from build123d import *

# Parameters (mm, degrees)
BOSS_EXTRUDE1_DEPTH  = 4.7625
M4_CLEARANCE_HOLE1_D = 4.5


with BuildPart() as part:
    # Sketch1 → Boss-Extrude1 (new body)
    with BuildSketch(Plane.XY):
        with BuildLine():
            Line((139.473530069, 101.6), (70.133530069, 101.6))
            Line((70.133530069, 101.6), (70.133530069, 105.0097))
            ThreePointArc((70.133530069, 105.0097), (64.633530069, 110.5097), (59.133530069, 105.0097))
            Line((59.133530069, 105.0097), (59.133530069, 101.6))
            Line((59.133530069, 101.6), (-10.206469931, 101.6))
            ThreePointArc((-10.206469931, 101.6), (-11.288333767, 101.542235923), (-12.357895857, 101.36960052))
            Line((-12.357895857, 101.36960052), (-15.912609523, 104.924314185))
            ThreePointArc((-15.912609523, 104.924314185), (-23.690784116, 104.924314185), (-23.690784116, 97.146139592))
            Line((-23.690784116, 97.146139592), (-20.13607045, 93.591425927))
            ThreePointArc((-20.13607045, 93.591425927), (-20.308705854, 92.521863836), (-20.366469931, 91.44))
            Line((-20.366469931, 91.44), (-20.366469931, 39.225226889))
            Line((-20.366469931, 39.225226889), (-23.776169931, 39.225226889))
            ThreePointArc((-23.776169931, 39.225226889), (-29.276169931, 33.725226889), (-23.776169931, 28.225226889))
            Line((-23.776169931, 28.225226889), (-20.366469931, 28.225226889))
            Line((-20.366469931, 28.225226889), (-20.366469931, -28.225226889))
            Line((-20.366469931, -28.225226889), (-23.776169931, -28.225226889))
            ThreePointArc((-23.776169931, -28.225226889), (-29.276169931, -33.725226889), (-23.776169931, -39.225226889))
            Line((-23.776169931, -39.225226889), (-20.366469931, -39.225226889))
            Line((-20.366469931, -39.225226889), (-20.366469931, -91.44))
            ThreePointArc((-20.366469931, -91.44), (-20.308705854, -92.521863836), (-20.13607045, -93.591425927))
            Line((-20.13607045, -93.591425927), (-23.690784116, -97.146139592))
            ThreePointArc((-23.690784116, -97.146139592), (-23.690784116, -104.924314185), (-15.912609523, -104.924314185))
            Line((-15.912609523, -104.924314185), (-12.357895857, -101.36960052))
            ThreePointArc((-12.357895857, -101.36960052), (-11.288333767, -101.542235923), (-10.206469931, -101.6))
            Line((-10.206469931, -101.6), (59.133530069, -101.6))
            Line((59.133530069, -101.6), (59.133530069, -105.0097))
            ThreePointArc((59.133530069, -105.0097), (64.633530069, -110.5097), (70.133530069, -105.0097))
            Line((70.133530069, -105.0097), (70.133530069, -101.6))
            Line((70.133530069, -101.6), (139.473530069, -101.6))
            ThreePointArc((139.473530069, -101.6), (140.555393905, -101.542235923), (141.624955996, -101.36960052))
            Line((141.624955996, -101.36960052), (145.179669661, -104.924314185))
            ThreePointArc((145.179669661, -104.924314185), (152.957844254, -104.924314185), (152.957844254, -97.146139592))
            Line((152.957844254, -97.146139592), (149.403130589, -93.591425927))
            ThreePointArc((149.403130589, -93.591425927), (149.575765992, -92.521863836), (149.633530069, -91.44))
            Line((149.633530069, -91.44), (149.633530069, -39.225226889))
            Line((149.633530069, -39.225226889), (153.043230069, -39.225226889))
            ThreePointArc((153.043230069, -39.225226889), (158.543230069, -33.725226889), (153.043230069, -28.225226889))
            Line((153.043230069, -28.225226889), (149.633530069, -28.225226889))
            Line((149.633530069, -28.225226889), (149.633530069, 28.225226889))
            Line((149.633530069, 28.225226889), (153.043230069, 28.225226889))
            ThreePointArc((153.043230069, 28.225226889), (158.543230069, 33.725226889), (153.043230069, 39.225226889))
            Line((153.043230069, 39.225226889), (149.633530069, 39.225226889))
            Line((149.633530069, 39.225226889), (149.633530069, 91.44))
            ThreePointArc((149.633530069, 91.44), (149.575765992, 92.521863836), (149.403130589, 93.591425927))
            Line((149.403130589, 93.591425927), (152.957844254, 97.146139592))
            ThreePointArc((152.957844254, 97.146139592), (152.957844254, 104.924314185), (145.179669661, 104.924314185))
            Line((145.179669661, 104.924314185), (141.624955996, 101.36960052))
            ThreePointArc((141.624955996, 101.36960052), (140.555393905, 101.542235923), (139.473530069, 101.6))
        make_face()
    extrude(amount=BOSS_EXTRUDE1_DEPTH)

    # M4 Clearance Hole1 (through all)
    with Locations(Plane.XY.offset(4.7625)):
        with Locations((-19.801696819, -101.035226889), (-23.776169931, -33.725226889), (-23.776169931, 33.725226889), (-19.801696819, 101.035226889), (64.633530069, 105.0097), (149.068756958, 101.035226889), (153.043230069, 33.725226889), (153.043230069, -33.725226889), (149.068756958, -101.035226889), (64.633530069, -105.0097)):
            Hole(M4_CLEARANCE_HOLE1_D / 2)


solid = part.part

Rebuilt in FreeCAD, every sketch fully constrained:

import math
import FreeCAD as App
import Part
import Sketcher

V = App.Vector
Q = App.Units.Quantity

doc = App.newDocument("Part")
params = doc.addObject("Spreadsheet::Sheet", "Params")
for row, (alias, value) in enumerate([
    ("sketch1_radius", "5.5 mm"),
    ("sketch1_radius2", "10.16 mm"),
    ("sketch1_width", "69.34 mm"),
    ("pad1_length", "4.7625 mm"),
    ("sketch2_diameter", "4.5 mm"),
    ("hole_diameter", "4.5 mm"),
], start=1):
    params.set(f"A{row}", alias)
    params.set(f"B{row}", "=" + value)
    params.setAlias(f"B{row}", alias)

body = doc.addObject("PartDesign::Body", "Body")

sketch1 = body.newObject("Sketcher::SketchObject", "Sketch")
sketch1.AttachmentSupport = (doc.getObject("XY_Plane"), [""])
sketch1.MapMode = "FlatFace"
sketch1.addGeometry([
    Part.LineSegment(V(139.5, 101.6, 0), V(70.1, 101.6, 0)),
    Part.LineSegment(V(70.1, 101.6, 0), V(70.1, 105, 0)),
    Part.ArcOfCircle(Part.Circle(V(64.6, 105, 0), V(0, 0, 1), 5.5), math.radians(0), math.radians(180)),
    Part.LineSegment(V(59.1, 105, 0), V(59.1, 101.6, 0)),
    Part.LineSegment(V(59.1, 101.6, 0), V(-10.2, 101.6, 0)),
    Part.ArcOfCircle(Part.Circle(V(-10.2, 91.4, 0), V(0, 0, 1), 10.2), math.radians(90), math.radians(102.23)),
    Part.LineSegment(V(-12.4, 101.4, 0), V(-15.9, 104.9, 0)),
    Part.ArcOfCircle(Part.Circle(V(-19.8, 101, 0), V(0, 0, 1), 5.5), math.radians(45), math.radians(225)),
    Part.LineSegment(V(-23.7, 97.1, 0), V(-20.1, 93.6, 0)),
    Part.ArcOfCircle(Part.Circle(V(-10.2, 91.4, 0), V(0, 0, 1), 10.2), math.radians(167.77), math.radians(180)),
    Part.LineSegment(V(-20.4, 91.4, 0), V(-20.4, 39.2, 0)),
    Part.LineSegment(V(-20.4, 39.2, 0), V(-23.8, 39.2, 0)),
    Part.ArcOfCircle(Part.Circle(V(-23.8, 33.7, 0), V(0, 0, 1), 5.5), math.radians(90), math.radians(270)),
    Part.LineSegment(V(-23.8, 28.2, 0), V(-20.4, 28.2, 0)),
    Part.LineSegment(V(-20.4, 28.2, 0), V(-20.4, -28.2, 0)),
    Part.LineSegment(V(-20.4, -28.2, 0), V(-23.8, -28.2, 0)),
    Part.ArcOfCircle(Part.Circle(V(-23.8, -33.7, 0), V(0, 0, 1), 5.5), math.radians(90), math.radians(270)),
    Part.LineSegment(V(-23.8, -39.2, 0), V(-20.4, -39.2, 0)),
    Part.LineSegment(V(-20.4, -39.2, 0), V(-20.4, -91.4, 0)),
    Part.ArcOfCircle(Part.Circle(V(-10.2, -91.4, 0), V(0, 0, 1), 10.2), math.radians(180), math.radians(192.23)),
    Part.LineSegment(V(-20.1, -93.6, 0), V(-23.7, -97.1, 0)),
    Part.ArcOfCircle(Part.Circle(V(-19.8, -101, 0), V(0, 0, 1), 5.5), math.radians(135), math.radians(315)),
    Part.LineSegment(V(-15.9, -104.9, 0), V(-12.4, -101.4, 0)),
    Part.ArcOfCircle(Part.Circle(V(-10.2, -91.4, 0), V(0, 0, 1), 10.2), math.radians(-102.23), math.radians(-90)),
    Part.LineSegment(V(-10.2, -101.6, 0), V(59.1, -101.6, 0)),
    Part.LineSegment(V(59.1, -101.6, 0), V(59.1, -105, 0)),
    Part.ArcOfCircle(Part.Circle(V(64.6, -105, 0), V(0, 0, 1), 5.5), math.radians(180), math.radians(360)),
    Part.LineSegment(V(70.1, -105, 0), V(70.1, -101.6, 0)),
    Part.LineSegment(V(70.1, -101.6, 0), V(139.5, -101.6, 0)),
    Part.ArcOfCircle(Part.Circle(V(139.5, -91.4, 0), V(0, 0, 1), 10.2), math.radians(-90), math.radians(-77.77)),
    Part.LineSegment(V(141.6, -101.4, 0), V(145.2, -104.9, 0)),
    Part.ArcOfCircle(Part.Circle(V(149.1, -101, 0), V(0, 0, 1), 5.5), math.radians(-135), math.radians(45)),
    Part.LineSegment(V(153, -97.1, 0), V(149.4, -93.6, 0)),
    Part.ArcOfCircle(Part.Circle(V(139.5, -91.4, 0), V(0, 0, 1), 10.2), math.radians(-12.23), math.radians(0)),
    Part.LineSegment(V(149.6, -91.4, 0), V(149.6, -39.2, 0)),
    Part.LineSegment(V(149.6, -39.2, 0), V(153, -39.2, 0)),
    Part.ArcOfCircle(Part.Circle(V(153, -33.7, 0), V(0, 0, 1), 5.5), math.radians(-90), math.radians(90)),
    Part.LineSegment(V(153, -28.2, 0), V(149.6, -28.2, 0)),
    Part.LineSegment(V(149.6, -28.2, 0), V(149.6, 28.2, 0)),
    Part.LineSegment(V(149.6, 28.2, 0), V(153, 28.2, 0)),
    Part.ArcOfCircle(Part.Circle(V(153, 33.7, 0), V(0, 0, 1), 5.5), math.radians(-90), math.radians(90)),
    Part.LineSegment(V(153, 39.2, 0), V(149.6, 39.2, 0)),
    Part.LineSegment(V(149.6, 39.2, 0), V(149.6, 91.4, 0)),
    Part.ArcOfCircle(Part.Circle(V(139.5, 91.4, 0), V(0, 0, 1), 10.2), math.radians(0), math.radians(12.23)),
    Part.LineSegment(V(149.4, 93.6, 0), V(153, 97.1, 0)),
    Part.ArcOfCircle(Part.Circle(V(149.1, 101, 0), V(0, 0, 1), 5.5), math.radians(-45), math.radians(135)),
    Part.LineSegment(V(145.2, 104.9, 0), V(141.6, 101.4, 0)),
    Part.ArcOfCircle(Part.Circle(V(139.5, 91.4, 0), V(0, 0, 1), 10.2), math.radians(77.77), math.radians(90)),
], False)
sketch1.addConstraint([
    Sketcher.Constraint("Coincident", 0, 2, 1, 1),
    Sketcher.Constraint("Tangent", 1, 2, 2, 1),
    Sketcher.Constraint("Tangent", 2, 2, 3, 1),
    Sketcher.Constraint("Coincident", 3, 2, 4, 1),
    Sketcher.Constraint("Tangent", 4, 2, 5, 1),
    Sketcher.Constraint("Coincident", 5, 2, 6, 1),
    Sketcher.Constraint("Tangent", 6, 2, 7, 1),
    Sketcher.Constraint("Tangent", 7, 2, 8, 1),
    Sketcher.Constraint("Coincident", 8, 2, 9, 1),
    Sketcher.Constraint("Tangent", 9, 2, 10, 1),
    Sketcher.Constraint("Coincident", 10, 2, 11, 1),
    Sketcher.Constraint("Tangent", 11, 2, 12, 1),
    Sketcher.Constraint("Tangent", 12, 2, 13, 1),
    Sketcher.Constraint("Coincident", 13, 2, 14, 1),
    Sketcher.Constraint("Coincident", 14, 2, 15, 1),
    Sketcher.Constraint("Tangent", 15, 2, 16, 1),
    Sketcher.Constraint("Tangent", 16, 2, 17, 1),
    Sketcher.Constraint("Coincident", 17, 2, 18, 1),
    Sketcher.Constraint("Tangent", 18, 2, 19, 1),
    Sketcher.Constraint("Coincident", 19, 2, 20, 1),
    Sketcher.Constraint("Tangent", 20, 2, 21, 1),
    Sketcher.Constraint("Tangent", 21, 2, 22, 1),
    Sketcher.Constraint("Coincident", 22, 2, 23, 1),
    Sketcher.Constraint("Tangent", 23, 2, 24, 1),
    Sketcher.Constraint("Coincident", 24, 2, 25, 1),
    Sketcher.Constraint("Tangent", 25, 2, 26, 1),
    Sketcher.Constraint("Tangent", 26, 2, 27, 1),
    Sketcher.Constraint("Coincident", 27, 2, 28, 1),
    Sketcher.Constraint("Tangent", 28, 2, 29, 1),
    Sketcher.Constraint("Coincident", 29, 2, 30, 1),
    Sketcher.Constraint("Tangent", 30, 2, 31, 1),
    Sketcher.Constraint("Tangent", 31, 2, 32, 1),
    Sketcher.Constraint("Coincident", 32, 2, 33, 1),
    Sketcher.Constraint("Tangent", 33, 2, 34, 1),
    Sketcher.Constraint("Coincident", 34, 2, 35, 1),
    Sketcher.Constraint("Tangent", 35, 2, 36, 1),
    Sketcher.Constraint("Tangent", 36, 2, 37, 1),
    Sketcher.Constraint("Coincident", 37, 2, 38, 1),
    Sketcher.Constraint("Coincident", 38, 2, 39, 1),
    Sketcher.Constraint("Tangent", 39, 2, 40, 1),
    Sketcher.Constraint("Tangent", 40, 2, 41, 1),
    Sketcher.Constraint("Coincident", 41, 2, 42, 1),
    Sketcher.Constraint("Tangent", 42, 2, 43, 1),
    Sketcher.Constraint("Coincident", 43, 2, 44, 1),
    Sketcher.Constraint("Tangent", 44, 2, 45, 1),
    Sketcher.Constraint("Tangent", 45, 2, 46, 1),
    Sketcher.Constraint("Coincident", 46, 2, 47, 1),
    Sketcher.Constraint("Tangent", 47, 2, 0, 1),
    Sketcher.Constraint("Horizontal", 0),
    Sketcher.Constraint("Vertical", 1),
    Sketcher.Constraint("Vertical", 3),
    Sketcher.Constraint("Horizontal", 4),
    Sketcher.Constraint("Vertical", 10),
    Sketcher.Constraint("Horizontal", 11),
    Sketcher.Constraint("Horizontal", 13),
    Sketcher.Constraint("Vertical", 14),
    Sketcher.Constraint("Horizontal", 15),
    Sketcher.Constraint("Horizontal", 17),
    Sketcher.Constraint("Vertical", 18),
    Sketcher.Constraint("Horizontal", 24),
    Sketcher.Constraint("Vertical", 25),
    Sketcher.Constraint("Vertical", 27),
    Sketcher.Constraint("Horizontal", 28),
    Sketcher.Constraint("Vertical", 34),
    Sketcher.Constraint("Horizontal", 35),
    Sketcher.Constraint("Horizontal", 37),
    Sketcher.Constraint("Vertical", 38),
    Sketcher.Constraint("Horizontal", 39),
    Sketcher.Constraint("Horizontal", 41),
    Sketcher.Constraint("Vertical", 42),
    Sketcher.Constraint("Coincident", 9, 3, 5, 3),
    Sketcher.Constraint("Coincident", 23, 3, 19, 3),
    Sketcher.Constraint("Coincident", 33, 3, 29, 3),
    Sketcher.Constraint("Coincident", 47, 3, 43, 3),
    Sketcher.Constraint("Equal", 2, 7),
    Sketcher.Constraint("Equal", 5, 9),
    Sketcher.Constraint("Equal", 7, 12),
    Sketcher.Constraint("Equal", 12, 16),
    Sketcher.Constraint("Equal", 9, 19),
    Sketcher.Constraint("Equal", 16, 21),
    Sketcher.Constraint("Equal", 19, 23),
    Sketcher.Constraint("Equal", 21, 26),
    Sketcher.Constraint("Equal", 23, 29),
    Sketcher.Constraint("Equal", 26, 31),
    Sketcher.Constraint("Equal", 29, 33),
    Sketcher.Constraint("Equal", 31, 36),
    Sketcher.Constraint("Equal", 36, 40),
    Sketcher.Constraint("Equal", 33, 43),
    Sketcher.Constraint("Equal", 40, 45),
    Sketcher.Constraint("Equal", 43, 47),
    Sketcher.Constraint("Symmetric", 12, 3, 16, 3, -1),
    Sketcher.Constraint("Symmetric", 5, 3, 19, 3, -1),
    Sketcher.Constraint("Symmetric", 7, 3, 21, 3, -1),
    Sketcher.Constraint("Symmetric", 2, 3, 26, 3, -1),
    Sketcher.Constraint("Symmetric", 36, 3, 40, 3, -1),
    Sketcher.Constraint("Symmetric", 29, 3, 43, 3, -1),
    Sketcher.Constraint("Symmetric", 31, 3, 45, 3, -1),
    Sketcher.Constraint("Parallel", 6, 8),
    Sketcher.Constraint("Perpendicular", 8, 20),
    Sketcher.Constraint("Parallel", 20, 22),
    Sketcher.Constraint("Perpendicular", 22, 30),
    Sketcher.Constraint("Parallel", 30, 32),
    Sketcher.Constraint("Perpendicular", 32, 44),
    Sketcher.Constraint("Parallel", 44, 46),
    Sketcher.Constraint("Horizontal", 23, 3, 29, 3),
    Sketcher.Constraint("Horizontal", 21, 3, 31, 3),
    Sketcher.Constraint("Horizontal", 16, 3, 36, 3),
    Sketcher.Constraint("Horizontal", 22, 2, 29, 2),
    Sketcher.Constraint("Horizontal", 21, 2, 30, 2),
    Sketcher.Constraint("Vertical", 10, 2, 13, 2),
    Sketcher.Constraint("Vertical", 34, 2, 37, 2),
    Sketcher.Constraint("Equal", 0, 4),
    Sketcher.Constraint("Equal", 17, 35),
    Sketcher.Constraint("Equal", 41, 1),
    Sketcher.Constraint("Equal", 6, 8),
    Sketcher.Constraint("Radius", 2, Q("5.5 mm")),
    Sketcher.Constraint("Radius", 5, Q("10.16 mm")),
    Sketcher.Constraint("DistanceX", 0, 2, 0, 1, Q("69.34 mm")),
    Sketcher.Constraint("DistanceY", -1, 1, 0, 2, Q("101.6 mm")),
    Sketcher.Constraint("DistanceX", 11, 2, 11, 1, Q("3.4097 mm")),
    Sketcher.Constraint("DistanceY", 10, 2, 10, 1, Q("52.214773 mm")),
    Sketcher.Constraint("DistanceX", -1, 1, 2, 3, Q("64.63353 mm")),
    Sketcher.Constraint("DistanceX", 6, 2, -1, 1, Q("15.91261 mm")),
])
sketch1.setExpression("Constraints[115]", "Params.sketch1_radius")
sketch1.setExpression("Constraints[116]", "Params.sketch1_radius2")
sketch1.setExpression("Constraints[117]", "Params.sketch1_width")
pad1 = body.newObject("PartDesign::Pad", "Pad")
pad1.Profile = sketch1
pad1.setExpression("Length", "Params.pad1_length")

sketch2 = body.newObject("Sketcher::SketchObject", "Sketch001")
sketch2.AttachmentSupport = (doc.getObject("XY_Plane"), [""])
sketch2.MapMode = "FlatFace"
sketch2.AttachmentOffset = App.Placement(V(0, 0, 4.7625), App.Rotation())
sketch2.addGeometry([
    Part.Circle(V(-19.8, -101, 0), V(0, 0, 1), 2.2),
    Part.Circle(V(-23.8, -33.7, 0), V(0, 0, 1), 2.2),
    Part.Circle(V(-23.8, 33.7, 0), V(0, 0, 1), 2.2),
    Part.Circle(V(-19.8, 101, 0), V(0, 0, 1), 2.2),
    Part.Circle(V(64.6, 105, 0), V(0, 0, 1), 2.2),
    Part.Circle(V(149.1, 101, 0), V(0, 0, 1), 2.2),
    Part.Circle(V(153, 33.7, 0), V(0, 0, 1), 2.2),
    Part.Circle(V(153, -33.7, 0), V(0, 0, 1), 2.2),
    Part.Circle(V(149.1, -101, 0), V(0, 0, 1), 2.2),
    Part.Circle(V(64.6, -105, 0), V(0, 0, 1), 2.2),
], False)
sketch2.addConstraint([
    Sketcher.Constraint("Equal", 0, 1),
    Sketcher.Constraint("Equal", 1, 2),
    Sketcher.Constraint("Equal", 2, 3),
    Sketcher.Constraint("Equal", 3, 4),
    Sketcher.Constraint("Equal", 4, 5),
    Sketcher.Constraint("Equal", 5, 6),
    Sketcher.Constraint("Equal", 6, 7),
    Sketcher.Constraint("Equal", 7, 8),
    Sketcher.Constraint("Equal", 8, 9),
    Sketcher.Constraint("Symmetric", 1, 3, 2, 3, -1),
    Sketcher.Constraint("Symmetric", 0, 3, 3, 3, -1),
    Sketcher.Constraint("Symmetric", 6, 3, 7, 3, -1),
    Sketcher.Constraint("Symmetric", 5, 3, 8, 3, -1),
    Sketcher.Constraint("Symmetric", 4, 3, 9, 3, -1),
    Sketcher.Constraint("Horizontal", 3, 3, 5, 3),
    Sketcher.Constraint("Horizontal", 2, 3, 6, 3),
    Sketcher.Constraint("Diameter", 0, Q("4.5 mm")),
    Sketcher.Constraint("DistanceY", 0, 3, 1, 3, Q("67.31 mm")),
    Sketcher.Constraint("DistanceY", -1, 1, 4, 3, Q("105.0097 mm")),
    Sketcher.Constraint("DistanceX", 2, 3, 4, 3, Q("88.4097 mm")),
    Sketcher.Constraint("DistanceX", 4, 3, 6, 3, Q("88.4097 mm")),
    Sketcher.Constraint("DistanceX", 1, 3, -1, 1, Q("23.77617 mm")),
    Sketcher.Constraint("DistanceX", 0, 3, -1, 1, Q("19.801697 mm")),
    Sketcher.Constraint("DistanceY", 0, 3, -1, 1, Q("101.035227 mm")),
    Sketcher.Constraint("DistanceX", -1, 1, 5, 3, Q("149.068757 mm")),
])
sketch2.setExpression("Constraints[16]", "Params.sketch2_diameter")
doc.recompute()
hole = body.newObject("PartDesign::Hole", "Hole")
hole.Profile = sketch2
hole.ThreadType = "None"
hole.setExpression("Diameter", "Params.hole_diameter")
hole.DepthType = "ThroughAll"

doc.recompute()
